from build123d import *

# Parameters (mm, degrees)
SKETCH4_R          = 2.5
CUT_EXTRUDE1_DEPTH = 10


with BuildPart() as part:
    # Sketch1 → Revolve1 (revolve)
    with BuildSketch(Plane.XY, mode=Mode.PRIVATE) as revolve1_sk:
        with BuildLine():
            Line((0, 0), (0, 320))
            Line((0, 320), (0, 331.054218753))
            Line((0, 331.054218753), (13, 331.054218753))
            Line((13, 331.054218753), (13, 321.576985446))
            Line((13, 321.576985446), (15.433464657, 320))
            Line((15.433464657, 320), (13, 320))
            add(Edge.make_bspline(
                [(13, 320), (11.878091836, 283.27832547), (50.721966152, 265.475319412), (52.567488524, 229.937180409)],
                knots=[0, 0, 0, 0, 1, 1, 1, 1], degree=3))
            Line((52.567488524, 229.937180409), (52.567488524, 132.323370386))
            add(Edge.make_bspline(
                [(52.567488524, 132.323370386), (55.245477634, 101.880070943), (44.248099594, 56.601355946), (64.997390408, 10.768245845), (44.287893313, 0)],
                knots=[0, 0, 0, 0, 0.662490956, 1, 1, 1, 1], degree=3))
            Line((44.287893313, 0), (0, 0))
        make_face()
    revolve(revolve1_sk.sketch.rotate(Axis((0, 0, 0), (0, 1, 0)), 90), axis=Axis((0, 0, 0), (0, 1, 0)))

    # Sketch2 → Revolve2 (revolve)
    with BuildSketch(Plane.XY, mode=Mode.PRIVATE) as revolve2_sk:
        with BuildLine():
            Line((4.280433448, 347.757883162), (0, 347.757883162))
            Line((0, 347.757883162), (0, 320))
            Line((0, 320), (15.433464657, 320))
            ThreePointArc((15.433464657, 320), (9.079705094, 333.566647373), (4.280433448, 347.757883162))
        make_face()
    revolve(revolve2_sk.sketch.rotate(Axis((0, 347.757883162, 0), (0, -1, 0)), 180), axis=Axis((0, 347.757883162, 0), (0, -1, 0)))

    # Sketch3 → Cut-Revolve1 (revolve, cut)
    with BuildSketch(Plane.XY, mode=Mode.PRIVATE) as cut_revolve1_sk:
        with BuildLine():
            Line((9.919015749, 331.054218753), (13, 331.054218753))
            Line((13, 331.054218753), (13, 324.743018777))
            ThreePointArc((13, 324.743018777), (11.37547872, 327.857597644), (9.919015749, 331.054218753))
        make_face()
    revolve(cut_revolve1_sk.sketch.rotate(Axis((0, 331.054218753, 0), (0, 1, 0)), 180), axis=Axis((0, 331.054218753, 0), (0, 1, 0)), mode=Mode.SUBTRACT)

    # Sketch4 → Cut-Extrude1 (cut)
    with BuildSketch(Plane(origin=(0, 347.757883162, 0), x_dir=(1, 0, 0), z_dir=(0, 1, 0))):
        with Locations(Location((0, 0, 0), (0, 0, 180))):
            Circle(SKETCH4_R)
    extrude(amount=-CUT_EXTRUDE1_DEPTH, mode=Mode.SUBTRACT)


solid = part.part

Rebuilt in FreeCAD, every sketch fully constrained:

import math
import FreeCAD as App
import Part
import Sketcher
from FreeCAD import Vector

doc = App.newDocument("Part")
params = doc.addObject("Spreadsheet::Sheet", "Params")
for row, (alias, value) in enumerate([
    ("sketch1_width", "13 mm"),
    ("revolution_angle", "360 deg"),
    ("revolution2_angle", "360 deg"),
    ("groove_angle", "360 deg"),
    ("sketch4_diameter", "5 mm"),
    ("pocket1_length", "10 mm"),
], start=1):
    params.set(f"A{row}", alias)
    params.set(f"B{row}", "=" + value)
    params.setAlias(f"B{row}", alias)

body = doc.addObject("PartDesign::Body", "Body")

sketch1 = body.newObject("Sketcher::SketchObject", "Sketch")
sketch1.AttachmentSupport = (doc.getObject("XY_Plane"), [""])
sketch1.MapMode = "FlatFace"
sketch1.addGeometry([
    Part.LineSegment(Vector(0, 331.054219, 0), Vector(0, 0, 0)),
    Part.LineSegment(Vector(0, 0, 0), Vector(44.287893, 0, 0)),
    Part.BSplineCurve([Vector(52.567489, 132.32337, 0), Vector(55.245478, 101.880071, 0), Vector(44.2481, 56.601356, 0), Vector(64.99739, 10.768246, 0), Vector(44.287893, 0, 0)], [4, 1, 4], [0, 0.662490956, 1], False, 3, [1, 1, 1, 1, 1], False),
    Part.LineSegment(Vector(52.567489, 132.32337, 0), Vector(52.567489, 229.93718, 0)),
    Part.BSplineCurve([Vector(13, 320, 0), Vector(11.878092, 283.278325, 0), Vector(50.721966, 265.475319, 0), Vector(52.567489, 229.93718, 0)], [4, 4], [0, 1], False, 3, [1, 1, 1, 1], False),
    Part.LineSegment(Vector(13, 320, 0), Vector(15.433465, 320, 0)),
    Part.LineSegment(Vector(15.433465, 320, 0), Vector(13, 321.576985, 0)),
    Part.LineSegment(Vector(13, 321.576985, 0), Vector(13, 331.054219, 0)),
    Part.LineSegment(Vector(13, 331.054219, 0), Vector(0, 331.054219, 0)),
], False)
sketch1.addConstraint([
    Sketcher.Constraint("Block", 2),
    Sketcher.Constraint("Block", 4),
    Sketcher.Constraint("Coincident", 0, 2, 1, 1),
    Sketcher.Constraint("Coincident", 1, 2, 2, 2),
    Sketcher.Constraint("Coincident", 2, 1, 3, 1),
    Sketcher.Constraint("Coincident", 3, 2, 4, 2),
    Sketcher.Constraint("Coincident", 4, 1, 5, 1),
    Sketcher.Constraint("Coincident", 5, 2, 6, 1),
    Sketcher.Constraint("Coincident", 6, 2, 7, 1),
    Sketcher.Constraint("Coincident", 7, 2, 8, 1),
    Sketcher.Constraint("Coincident", 8, 2, 0, 1),
    Sketcher.Constraint("Vertical", 0),
    Sketcher.Constraint("Horizontal", 1),
    Sketcher.Constraint("Horizontal", 5),
    Sketcher.Constraint("Vertical", 7),
    Sketcher.Constraint("Horizontal", 8),
    Sketcher.Constraint("PointOnObject", 8, 2, -2),
    Sketcher.Constraint("DistanceX", 8, 2, 8, 1, 13.0),
    Sketcher.Constraint("DistanceY", 0, 2, 0, 1, 331.054219),
    Sketcher.Constraint("DistanceX", 5, 1, 5, 2, 2.433465),
    Sketcher.Constraint("DistanceY", 7, 1, 7, 2, 9.477233),
])
sketch1.setExpression("Constraints[17]", "Params.sketch1_width")
revolution = body.newObject("PartDesign::Revolution", "Revolution")
revolution.Profile = sketch1
revolution.ReferenceAxis = (sketch1, ["V_Axis"])
revolution.setExpression("Angle", "Params.revolution_angle")

sketch2 = body.newObject("Sketcher::SketchObject", "Sketch001")
sketch2.AttachmentSupport = (doc.getObject("XY_Plane"), [""])
sketch2.MapMode = "FlatFace"
sketch2.addGeometry([
    Part.LineSegment(Vector(4.280433, 347.757883, 0), Vector(0, 347.757883, 0)),
    Part.LineSegment(Vector(0, 347.757883, 0), Vector(0, 320, 0)),
    Part.LineSegment(Vector(0, 320, 0), Vector(15.433465, 320, 0)),
    Part.ArcOfCircle(Part.Circle(Vector(133.383745, 383.511624, 0), Vector(0, 0, 1), 133.962663), math.radians(-164.520515), math.radians(-151.699269)),
], False)
sketch2.addConstraint([
    Sketcher.Constraint("Coincident", 0, 2, 1, 1),
    Sketcher.Constraint("Coincident", 1, 2, 2, 1),
    Sketcher.Constraint("Coincident", 2, 2, 3, 2),
    Sketcher.Constraint("Coincident", 3, 1, 0, 1),
    Sketcher.Constraint("Horizontal", 0),
    Sketcher.Constraint("Vertical", 1),
    Sketcher.Constraint("Horizontal", 2),
    Sketcher.Constraint("PointOnObject", 0, 2, -2),
    Sketcher.Constraint("DistanceY", -1, 1, 1, 2, 320.0),
    Sketcher.Constraint("Radius", 3, 133.962663),
    Sketcher.Constraint("DistanceX", 0, 2, 0, 1, 4.280433),
    Sketcher.Constraint("DistanceX", 2, 1, 2, 2, 15.433465),
    Sketcher.Constraint("DistanceY", 1, 2, 1, 1, 27.757883),
])
revolution2 = body.newObject("PartDesign::Revolution", "Revolution001")
revolution2.Profile = sketch2
revolution2.ReferenceAxis = (sketch2, ["V_Axis"])
revolution2.setExpression("Angle", "Params.revolution2_angle")

sketch3 = body.newObject("Sketcher::SketchObject", "Sketch002")
sketch3.AttachmentSupport = (doc.getObject("XY_Plane"), [""])
sketch3.MapMode = "FlatFace"
sketch3.addGeometry([
    Part.LineSegment(Vector(13, 331.054219, 0), Vector(9.919016, 331.054219, 0)),
    Part.ArcOfCircle(Part.Circle(Vector(70.669615, 356.803646, 0), Vector(0, 0, 1), 65.982333), math.radians(-157.030112), math.radians(-150.928732)),
    Part.LineSegment(Vector(13, 324.743019, 0), Vector(13, 331.054219, 0)),
], False)
sketch3.addConstraint([
    Sketcher.Constraint("Coincident", 0, 2, 1, 1),
    Sketcher.Constraint("Coincident", 1, 2, 2, 1),
    Sketcher.Constraint("Coincident", 2, 2, 0, 1),
    Sketcher.Constraint("Horizontal", 0),
    Sketcher.Constraint("Vertical", 2),
    Sketcher.Constraint("DistanceX", -1, 1, 1, 2, 13.0),
    Sketcher.Constraint("DistanceY", 2, 1, 2, 2, 6.3112),
    Sketcher.Constraint("Radius", 1, 65.982333),
    Sketcher.Constraint("DistanceX", 0, 2, 1, 3, 60.750599),
    Sketcher.Constraint("DistanceY", -1, 1, 0, 2, 331.054219),
])
groove = body.newObject("PartDesign::Groove", "Groove")
groove.Profile = sketch3
groove.ReferenceAxis = (sketch3, ["V_Axis"])
groove.setExpression("Angle", "Params.groove_angle")

sketch4 = body.newObject("Sketcher::SketchObject", "Sketch003")
sketch4.AttachmentSupport = (doc.getObject("XZ_Plane"), [""])
sketch4.MapMode = "FlatFace"
sketch4.AttachmentOffset = App.Placement(Vector(0, 0, -347.757883), App.Rotation())
sketch4.addGeometry(Part.Circle(Vector(0, 0, 0), Vector(0, 0, 1), 2.5), False)
sketch4.addConstraint([
    Sketcher.Constraint("Coincident", 0, 3, -1, 1),
    Sketcher.Constraint("Diameter", 0, 5.0),
])
sketch4.setExpression("Constraints[1]", "Params.sketch4_diameter")
pocket1 = body.newObject("PartDesign::Pocket", "Pocket")
pocket1.Profile = sketch4
pocket1.setExpression("Length", "Params.pocket1_length")
pocket1.Reversed = True

doc.recompute()
